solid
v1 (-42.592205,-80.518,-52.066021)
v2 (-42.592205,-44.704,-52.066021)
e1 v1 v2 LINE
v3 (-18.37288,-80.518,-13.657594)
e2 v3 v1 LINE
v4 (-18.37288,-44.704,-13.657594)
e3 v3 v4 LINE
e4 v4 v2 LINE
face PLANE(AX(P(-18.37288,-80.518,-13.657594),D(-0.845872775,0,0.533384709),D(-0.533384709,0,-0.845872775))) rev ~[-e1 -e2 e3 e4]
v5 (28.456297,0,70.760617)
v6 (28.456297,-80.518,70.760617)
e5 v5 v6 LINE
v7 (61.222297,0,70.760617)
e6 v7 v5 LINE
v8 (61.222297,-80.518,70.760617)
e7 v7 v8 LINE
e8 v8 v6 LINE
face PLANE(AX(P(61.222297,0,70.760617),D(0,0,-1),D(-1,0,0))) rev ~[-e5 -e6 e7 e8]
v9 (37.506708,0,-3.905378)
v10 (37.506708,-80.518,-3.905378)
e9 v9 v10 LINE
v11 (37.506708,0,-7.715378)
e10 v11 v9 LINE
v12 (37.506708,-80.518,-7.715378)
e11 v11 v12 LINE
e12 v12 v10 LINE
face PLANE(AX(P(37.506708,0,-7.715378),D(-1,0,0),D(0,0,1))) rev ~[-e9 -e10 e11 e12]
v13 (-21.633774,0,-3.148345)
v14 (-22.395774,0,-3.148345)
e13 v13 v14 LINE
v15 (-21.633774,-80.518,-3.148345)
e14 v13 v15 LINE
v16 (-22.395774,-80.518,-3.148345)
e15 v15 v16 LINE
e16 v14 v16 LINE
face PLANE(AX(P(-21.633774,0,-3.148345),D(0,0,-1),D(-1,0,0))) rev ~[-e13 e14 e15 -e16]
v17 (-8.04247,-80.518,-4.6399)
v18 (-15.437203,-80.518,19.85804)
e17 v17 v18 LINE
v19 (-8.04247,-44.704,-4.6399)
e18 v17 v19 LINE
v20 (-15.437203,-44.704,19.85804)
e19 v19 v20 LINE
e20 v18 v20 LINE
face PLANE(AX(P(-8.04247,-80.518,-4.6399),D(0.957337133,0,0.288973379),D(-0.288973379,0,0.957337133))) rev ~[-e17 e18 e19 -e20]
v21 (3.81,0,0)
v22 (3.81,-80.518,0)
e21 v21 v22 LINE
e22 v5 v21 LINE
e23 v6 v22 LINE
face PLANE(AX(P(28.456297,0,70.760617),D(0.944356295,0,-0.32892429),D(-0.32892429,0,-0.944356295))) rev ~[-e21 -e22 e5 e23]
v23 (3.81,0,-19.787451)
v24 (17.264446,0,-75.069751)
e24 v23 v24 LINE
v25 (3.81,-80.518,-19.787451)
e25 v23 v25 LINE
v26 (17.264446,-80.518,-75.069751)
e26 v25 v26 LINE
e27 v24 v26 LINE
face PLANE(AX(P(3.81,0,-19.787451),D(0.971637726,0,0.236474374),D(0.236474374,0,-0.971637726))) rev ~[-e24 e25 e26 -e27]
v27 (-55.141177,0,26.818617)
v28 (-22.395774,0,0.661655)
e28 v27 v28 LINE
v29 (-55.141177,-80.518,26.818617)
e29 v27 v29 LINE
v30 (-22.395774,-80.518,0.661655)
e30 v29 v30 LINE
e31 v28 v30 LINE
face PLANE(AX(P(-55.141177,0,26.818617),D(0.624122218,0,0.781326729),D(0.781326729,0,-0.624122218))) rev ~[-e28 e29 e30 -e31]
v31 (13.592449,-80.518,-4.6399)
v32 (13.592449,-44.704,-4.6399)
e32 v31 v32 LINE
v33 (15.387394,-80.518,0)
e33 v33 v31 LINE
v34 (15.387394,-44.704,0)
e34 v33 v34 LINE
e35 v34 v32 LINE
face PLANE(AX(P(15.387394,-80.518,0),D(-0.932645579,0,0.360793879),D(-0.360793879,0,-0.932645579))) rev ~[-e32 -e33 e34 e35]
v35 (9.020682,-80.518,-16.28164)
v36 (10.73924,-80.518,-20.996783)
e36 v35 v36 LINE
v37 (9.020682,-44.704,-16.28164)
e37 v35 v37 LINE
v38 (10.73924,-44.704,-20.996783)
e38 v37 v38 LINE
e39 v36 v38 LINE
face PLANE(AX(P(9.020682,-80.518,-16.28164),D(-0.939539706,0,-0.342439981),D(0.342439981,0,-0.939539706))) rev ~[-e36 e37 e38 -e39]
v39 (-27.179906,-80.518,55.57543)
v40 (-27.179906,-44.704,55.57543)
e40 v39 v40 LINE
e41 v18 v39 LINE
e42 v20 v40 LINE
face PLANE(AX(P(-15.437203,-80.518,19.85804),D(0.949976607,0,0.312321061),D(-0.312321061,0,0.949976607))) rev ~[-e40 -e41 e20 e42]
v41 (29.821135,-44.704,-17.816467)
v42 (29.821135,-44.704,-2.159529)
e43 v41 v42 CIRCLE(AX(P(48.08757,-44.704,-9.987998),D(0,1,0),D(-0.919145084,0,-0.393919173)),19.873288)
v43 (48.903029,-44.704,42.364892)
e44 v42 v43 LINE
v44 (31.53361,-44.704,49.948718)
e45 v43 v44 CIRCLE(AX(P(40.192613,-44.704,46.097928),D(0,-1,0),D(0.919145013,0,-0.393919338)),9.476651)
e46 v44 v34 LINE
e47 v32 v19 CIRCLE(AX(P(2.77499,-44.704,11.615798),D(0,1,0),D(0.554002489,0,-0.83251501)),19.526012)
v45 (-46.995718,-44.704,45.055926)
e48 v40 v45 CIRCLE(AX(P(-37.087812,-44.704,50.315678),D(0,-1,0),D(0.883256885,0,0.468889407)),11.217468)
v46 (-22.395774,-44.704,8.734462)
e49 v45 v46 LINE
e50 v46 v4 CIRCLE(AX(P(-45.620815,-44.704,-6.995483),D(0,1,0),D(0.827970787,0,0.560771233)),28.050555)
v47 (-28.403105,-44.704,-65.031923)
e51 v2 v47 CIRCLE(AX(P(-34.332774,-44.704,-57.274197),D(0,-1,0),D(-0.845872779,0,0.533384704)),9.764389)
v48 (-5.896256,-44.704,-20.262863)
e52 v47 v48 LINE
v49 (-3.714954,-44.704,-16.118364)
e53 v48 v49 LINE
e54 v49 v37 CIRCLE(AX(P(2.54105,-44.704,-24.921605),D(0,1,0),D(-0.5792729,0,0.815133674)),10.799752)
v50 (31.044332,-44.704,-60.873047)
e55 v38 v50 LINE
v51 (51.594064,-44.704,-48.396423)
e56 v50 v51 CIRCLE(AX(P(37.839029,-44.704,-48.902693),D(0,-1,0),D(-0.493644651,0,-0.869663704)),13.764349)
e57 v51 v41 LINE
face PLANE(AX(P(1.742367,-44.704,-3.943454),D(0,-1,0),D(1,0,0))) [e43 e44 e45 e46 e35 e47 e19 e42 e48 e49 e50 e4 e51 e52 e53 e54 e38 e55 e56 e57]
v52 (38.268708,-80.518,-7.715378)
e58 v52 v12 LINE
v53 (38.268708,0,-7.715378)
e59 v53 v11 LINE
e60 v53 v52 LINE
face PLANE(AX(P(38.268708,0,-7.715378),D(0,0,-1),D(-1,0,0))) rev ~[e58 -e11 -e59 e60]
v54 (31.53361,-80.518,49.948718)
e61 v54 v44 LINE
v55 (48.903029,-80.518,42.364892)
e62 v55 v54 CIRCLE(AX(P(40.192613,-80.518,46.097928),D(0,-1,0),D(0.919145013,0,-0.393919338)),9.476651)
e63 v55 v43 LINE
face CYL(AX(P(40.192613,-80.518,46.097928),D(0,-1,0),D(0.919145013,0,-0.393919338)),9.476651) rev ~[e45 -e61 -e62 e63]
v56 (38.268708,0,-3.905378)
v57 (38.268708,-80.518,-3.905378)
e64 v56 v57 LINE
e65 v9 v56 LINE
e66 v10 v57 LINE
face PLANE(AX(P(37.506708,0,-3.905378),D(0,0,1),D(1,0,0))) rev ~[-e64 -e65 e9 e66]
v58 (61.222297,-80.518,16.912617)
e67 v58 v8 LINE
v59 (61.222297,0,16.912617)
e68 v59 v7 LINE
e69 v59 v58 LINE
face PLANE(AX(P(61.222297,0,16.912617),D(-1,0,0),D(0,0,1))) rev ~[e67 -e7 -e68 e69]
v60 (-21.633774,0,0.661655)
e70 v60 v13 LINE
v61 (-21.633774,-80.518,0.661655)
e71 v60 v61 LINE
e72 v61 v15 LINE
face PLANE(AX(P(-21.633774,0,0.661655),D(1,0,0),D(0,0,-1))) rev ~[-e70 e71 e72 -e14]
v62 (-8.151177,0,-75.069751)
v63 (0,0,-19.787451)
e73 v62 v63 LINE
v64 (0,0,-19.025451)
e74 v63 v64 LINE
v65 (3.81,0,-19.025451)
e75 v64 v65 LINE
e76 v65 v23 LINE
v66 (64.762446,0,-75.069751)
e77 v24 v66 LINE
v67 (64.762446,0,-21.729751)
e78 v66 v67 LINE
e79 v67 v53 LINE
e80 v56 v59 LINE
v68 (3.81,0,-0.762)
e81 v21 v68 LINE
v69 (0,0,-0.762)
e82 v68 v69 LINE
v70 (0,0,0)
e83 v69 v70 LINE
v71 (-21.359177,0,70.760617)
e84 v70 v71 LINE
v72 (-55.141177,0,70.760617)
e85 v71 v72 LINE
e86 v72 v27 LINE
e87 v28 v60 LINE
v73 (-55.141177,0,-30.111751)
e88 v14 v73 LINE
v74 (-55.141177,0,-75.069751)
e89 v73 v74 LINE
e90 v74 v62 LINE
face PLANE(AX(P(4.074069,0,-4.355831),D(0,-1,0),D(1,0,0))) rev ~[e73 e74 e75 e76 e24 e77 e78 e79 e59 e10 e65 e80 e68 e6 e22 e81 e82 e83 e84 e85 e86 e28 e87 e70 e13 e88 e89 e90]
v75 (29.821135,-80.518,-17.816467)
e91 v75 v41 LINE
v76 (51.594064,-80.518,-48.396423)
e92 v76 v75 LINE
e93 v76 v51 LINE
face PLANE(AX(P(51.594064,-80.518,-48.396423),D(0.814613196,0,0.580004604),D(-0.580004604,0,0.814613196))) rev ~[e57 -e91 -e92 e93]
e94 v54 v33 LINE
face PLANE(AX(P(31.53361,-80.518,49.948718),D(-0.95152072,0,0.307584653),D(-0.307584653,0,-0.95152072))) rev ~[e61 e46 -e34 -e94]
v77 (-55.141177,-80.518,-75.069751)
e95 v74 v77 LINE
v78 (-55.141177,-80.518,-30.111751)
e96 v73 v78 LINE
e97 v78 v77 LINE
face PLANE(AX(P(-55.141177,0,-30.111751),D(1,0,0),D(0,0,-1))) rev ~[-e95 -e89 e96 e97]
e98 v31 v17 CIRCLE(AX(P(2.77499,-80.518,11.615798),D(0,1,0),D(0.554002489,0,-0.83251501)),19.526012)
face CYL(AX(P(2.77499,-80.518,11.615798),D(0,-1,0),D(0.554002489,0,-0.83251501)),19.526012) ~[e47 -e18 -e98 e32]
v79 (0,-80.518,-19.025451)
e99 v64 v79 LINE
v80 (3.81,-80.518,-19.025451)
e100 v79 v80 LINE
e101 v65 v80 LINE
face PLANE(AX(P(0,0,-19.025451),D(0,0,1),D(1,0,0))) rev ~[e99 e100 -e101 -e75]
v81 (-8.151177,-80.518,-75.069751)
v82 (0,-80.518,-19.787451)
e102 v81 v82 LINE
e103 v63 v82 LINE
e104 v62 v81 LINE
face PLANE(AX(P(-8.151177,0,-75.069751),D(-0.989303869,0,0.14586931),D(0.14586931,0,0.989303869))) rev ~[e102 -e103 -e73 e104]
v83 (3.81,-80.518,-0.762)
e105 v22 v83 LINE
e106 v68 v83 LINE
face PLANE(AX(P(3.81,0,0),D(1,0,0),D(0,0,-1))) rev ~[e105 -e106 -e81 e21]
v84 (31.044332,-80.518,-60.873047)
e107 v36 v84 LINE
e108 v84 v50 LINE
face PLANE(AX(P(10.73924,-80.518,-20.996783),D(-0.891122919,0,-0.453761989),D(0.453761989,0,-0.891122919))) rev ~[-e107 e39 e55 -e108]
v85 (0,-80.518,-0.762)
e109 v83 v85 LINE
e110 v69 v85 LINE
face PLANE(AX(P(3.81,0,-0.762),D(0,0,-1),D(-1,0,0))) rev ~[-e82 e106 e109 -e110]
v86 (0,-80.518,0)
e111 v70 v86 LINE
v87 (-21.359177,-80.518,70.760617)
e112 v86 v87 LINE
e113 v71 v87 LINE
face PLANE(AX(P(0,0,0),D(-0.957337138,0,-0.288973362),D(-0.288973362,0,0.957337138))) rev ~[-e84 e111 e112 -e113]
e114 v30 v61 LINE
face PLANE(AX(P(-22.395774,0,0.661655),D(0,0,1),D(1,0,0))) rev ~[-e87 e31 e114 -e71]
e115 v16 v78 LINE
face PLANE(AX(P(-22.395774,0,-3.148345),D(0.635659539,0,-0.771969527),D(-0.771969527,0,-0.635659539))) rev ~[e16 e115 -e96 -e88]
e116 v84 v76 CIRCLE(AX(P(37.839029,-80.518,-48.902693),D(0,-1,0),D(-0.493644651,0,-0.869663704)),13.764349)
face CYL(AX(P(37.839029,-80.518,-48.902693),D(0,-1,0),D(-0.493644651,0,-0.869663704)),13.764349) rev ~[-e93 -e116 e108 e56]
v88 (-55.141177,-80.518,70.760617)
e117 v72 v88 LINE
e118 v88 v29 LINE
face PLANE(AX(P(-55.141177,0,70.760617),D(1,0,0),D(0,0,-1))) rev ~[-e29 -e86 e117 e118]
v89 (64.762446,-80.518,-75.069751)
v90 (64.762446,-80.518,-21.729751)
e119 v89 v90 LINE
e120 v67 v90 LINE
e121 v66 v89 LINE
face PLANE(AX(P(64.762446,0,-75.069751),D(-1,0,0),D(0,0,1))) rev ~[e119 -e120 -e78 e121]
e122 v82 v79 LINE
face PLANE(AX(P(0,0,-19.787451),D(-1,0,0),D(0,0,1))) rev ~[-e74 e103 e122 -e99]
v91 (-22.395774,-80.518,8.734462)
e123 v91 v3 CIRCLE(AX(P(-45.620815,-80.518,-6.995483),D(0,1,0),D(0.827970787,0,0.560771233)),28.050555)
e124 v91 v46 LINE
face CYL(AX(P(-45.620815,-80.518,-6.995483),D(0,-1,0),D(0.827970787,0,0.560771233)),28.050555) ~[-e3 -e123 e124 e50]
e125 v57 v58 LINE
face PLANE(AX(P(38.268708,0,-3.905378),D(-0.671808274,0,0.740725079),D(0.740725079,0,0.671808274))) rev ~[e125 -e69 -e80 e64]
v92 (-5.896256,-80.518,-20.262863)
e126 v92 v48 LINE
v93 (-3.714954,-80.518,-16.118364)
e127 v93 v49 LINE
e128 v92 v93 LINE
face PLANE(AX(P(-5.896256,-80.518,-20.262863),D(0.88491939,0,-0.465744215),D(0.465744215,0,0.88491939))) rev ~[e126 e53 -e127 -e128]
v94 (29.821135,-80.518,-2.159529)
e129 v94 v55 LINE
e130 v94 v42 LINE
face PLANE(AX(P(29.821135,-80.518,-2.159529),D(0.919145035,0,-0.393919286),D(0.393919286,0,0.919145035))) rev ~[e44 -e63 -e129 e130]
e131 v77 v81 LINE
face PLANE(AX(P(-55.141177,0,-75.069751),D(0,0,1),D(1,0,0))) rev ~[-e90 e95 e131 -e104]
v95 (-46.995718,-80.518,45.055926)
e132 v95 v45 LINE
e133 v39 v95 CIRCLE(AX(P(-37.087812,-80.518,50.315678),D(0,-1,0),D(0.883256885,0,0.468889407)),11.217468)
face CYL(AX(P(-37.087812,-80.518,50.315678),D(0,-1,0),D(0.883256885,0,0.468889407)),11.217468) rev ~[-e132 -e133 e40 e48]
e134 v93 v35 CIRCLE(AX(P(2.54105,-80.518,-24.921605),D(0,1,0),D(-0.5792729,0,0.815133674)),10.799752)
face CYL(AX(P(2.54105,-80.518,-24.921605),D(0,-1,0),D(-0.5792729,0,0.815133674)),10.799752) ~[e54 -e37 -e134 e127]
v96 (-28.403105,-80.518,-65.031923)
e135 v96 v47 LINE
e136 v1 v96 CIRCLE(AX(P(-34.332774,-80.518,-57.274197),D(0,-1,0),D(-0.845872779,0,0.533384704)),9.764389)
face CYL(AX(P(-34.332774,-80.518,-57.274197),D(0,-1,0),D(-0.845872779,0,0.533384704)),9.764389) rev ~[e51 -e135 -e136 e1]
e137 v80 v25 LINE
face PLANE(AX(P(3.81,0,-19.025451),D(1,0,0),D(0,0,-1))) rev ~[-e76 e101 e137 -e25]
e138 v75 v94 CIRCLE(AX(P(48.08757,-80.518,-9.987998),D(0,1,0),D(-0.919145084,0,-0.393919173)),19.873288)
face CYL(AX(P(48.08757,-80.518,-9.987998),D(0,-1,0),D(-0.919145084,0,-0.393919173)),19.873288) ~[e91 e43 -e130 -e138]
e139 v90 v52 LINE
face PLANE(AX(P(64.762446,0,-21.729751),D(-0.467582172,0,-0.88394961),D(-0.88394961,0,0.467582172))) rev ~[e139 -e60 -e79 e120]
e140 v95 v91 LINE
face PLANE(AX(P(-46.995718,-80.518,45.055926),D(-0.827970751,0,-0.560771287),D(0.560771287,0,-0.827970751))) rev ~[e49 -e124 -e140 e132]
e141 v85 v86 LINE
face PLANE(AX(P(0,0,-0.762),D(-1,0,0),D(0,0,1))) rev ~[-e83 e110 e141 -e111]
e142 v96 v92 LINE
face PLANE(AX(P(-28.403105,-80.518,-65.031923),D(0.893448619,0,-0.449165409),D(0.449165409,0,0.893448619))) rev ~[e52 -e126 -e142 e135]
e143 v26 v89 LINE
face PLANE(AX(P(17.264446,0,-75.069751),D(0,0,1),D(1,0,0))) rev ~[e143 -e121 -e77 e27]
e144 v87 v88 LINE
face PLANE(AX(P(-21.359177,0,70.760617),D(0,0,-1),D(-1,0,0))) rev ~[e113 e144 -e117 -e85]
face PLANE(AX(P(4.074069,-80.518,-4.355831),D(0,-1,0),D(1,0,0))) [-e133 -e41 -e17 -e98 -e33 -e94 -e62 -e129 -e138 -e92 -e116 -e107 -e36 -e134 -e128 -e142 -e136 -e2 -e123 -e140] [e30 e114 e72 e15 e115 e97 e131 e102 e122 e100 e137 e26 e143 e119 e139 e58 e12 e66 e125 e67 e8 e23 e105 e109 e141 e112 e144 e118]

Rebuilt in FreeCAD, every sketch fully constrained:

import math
import FreeCAD as App
import Part
import Sketcher
from FreeCAD import Vector
Q = App.Units.Quantity


def add_polygon(sketch, points):
    """Adds a closed chain of lines whose ends are joined by coincident constraints."""
    first, n = sketch.GeometryCount, len(points)
    for a, b in zip(points, points[1:] + points[:1]):
        sketch.addGeometry(Part.LineSegment(App.Vector(*a, 0), App.Vector(*b, 0)), False)
    for i in range(n):
        sketch.addConstraint(Sketcher.Constraint("Coincident", first + i, 2, first + (i + 1) % n, 1))

doc = App.newDocument("Part")
body = doc.addObject("PartDesign::Body", "Body")

# Sketch on XZ plane
sketch1 = body.newObject("Sketcher::SketchObject", "Sketch")
sketch1.AttachmentSupport = (doc.getObject("XZ_Plane"), [""])
sketch1.MapMode = "FlatFace"
add_polygon(sketch1, [(0, -0.762), (0, 0), (-21.359177, 70.760617), (-55.141177, 70.760617), (-55.141177, 26.818617), (-22.395774, 0.661655), (-21.633774, 0.661655), (-21.633774, -3.148345), (-22.395774, -3.148345), (-55.141177, -30.111751), (-55.141177, -75.069751), (-8.151177, -75.069751), (0, -19.787451), (0, -19.025451), (3.81, -19.025451), (3.81, -19.787451), (17.264446, -75.069751), (64.762446, -75.069751), (64.762446, -21.729751), (38.268708, -7.715378), (37.506708, -7.715378), (37.506708, -3.905378), (38.268708, -3.905378), (61.222297, 16.912617), (61.222297, 70.760617), (28.456297, 70.760617), (3.81, 0), (3.81, -0.762)])  # lines 0-27
sketch1.addConstraint([
    Sketcher.Constraint("Vertical", 0),
    Sketcher.Constraint("Horizontal", 2),
    Sketcher.Constraint("Vertical", 3),
    Sketcher.Constraint("Horizontal", 5),
    Sketcher.Constraint("Vertical", 6),
    Sketcher.Constraint("Horizontal", 7),
    Sketcher.Constraint("Vertical", 9),
    Sketcher.Constraint("Horizontal", 10),
    Sketcher.Constraint("Vertical", 12),
    Sketcher.Constraint("Horizontal", 13),
    Sketcher.Constraint("Vertical", 14),
    Sketcher.Constraint("Horizontal", 16),
    Sketcher.Constraint("Vertical", 17),
    Sketcher.Constraint("Horizontal", 19),
    Sketcher.Constraint("Vertical", 20),
    Sketcher.Constraint("Horizontal", 21),
    Sketcher.Constraint("Vertical", 23),
    Sketcher.Constraint("Horizontal", 24),
    Sketcher.Constraint("Vertical", 26),
    Sketcher.Constraint("Horizontal", 27),
    Sketcher.Constraint("Coincident", 0, 2, -1, 1),
    Sketcher.Constraint("PointOnObject", 11, 2, -2),
    Sketcher.Constraint("PointOnObject", 25, 2, -1),
    Sketcher.Constraint("Horizontal", 11, 2, 14, 2),
    Sketcher.Constraint("Horizontal", 10, 2, 15, 2),
    Sketcher.Constraint("Horizontal", 2, 2, 23, 2),
    Sketcher.Constraint("Vertical", 4, 2, 7, 2),
    Sketcher.Constraint("Vertical", 3, 2, 8, 2),
    Sketcher.Constraint("Vertical", 18, 2, 21, 2),
    Sketcher.Constraint("Vertical", 14, 2, 25, 2),
    Sketcher.Constraint("Equal", 7, 19),
    Sketcher.Constraint("Equal", 21, 0),
    Sketcher.Constraint("Equal", 27, 6),
    Sketcher.Constraint("Equal", 0, 12),
    Sketcher.Constraint("Equal", 6, 20),
    Sketcher.Constraint("DistanceY", 17, 1, 17, 2, Q("2.1 in")),
    Sketcher.Constraint("Distance", 11, Q("2.2 in")),
    Sketcher.Constraint("DistanceX", 2, 2, 2, 1, Q("1.33 in")),
    Sketcher.Constraint("DistanceX", 5, 1, 5, 2, Q("0.03 in")),
    Sketcher.Constraint("DistanceX", 10, 1, 10, 2, Q("1.85 in")),
    Sketcher.Constraint("DistanceX", 13, 1, 13, 2, Q("0.15 in")),
    Sketcher.Constraint("DistanceX", 16, 1, 16, 2, Q("1.87 in")),
    Sketcher.Constraint("DistanceX", 24, 2, 24, 1, Q("1.29 in")),
    Sketcher.Constraint("DistanceY", 3, 2, 3, 1, Q("1.73 in")),
    Sketcher.Constraint("DistanceY", 9, 2, 9, 1, Q("1.77 in")),
    Sketcher.Constraint("DistanceY", 23, 1, 23, 2, Q("2.12 in")),
    Sketcher.Constraint("Distance", 1, Q("2.91 in")),
    Sketcher.Constraint("Distance", 4, Q("1.65 in")),
    Sketcher.Constraint("Distance", 8, Q("1.67 in")),
    Sketcher.Constraint("Distance", 15, Q("2.24 in")),
    Sketcher.Constraint("Distance", 18, Q("1.18 in")),
    Sketcher.Constraint("Distance", 22, Q("1.22 in")),
    Sketcher.Constraint("Distance", 25, Q("2.95 in")),
    Sketcher.Constraint("DistanceY", 15, 2, 14, 2, Q("55.2823 mm")),
    Sketcher.Constraint("DistanceY", 8, 2, -1, 1, Q("30.111751 mm")),
])
pad1 = body.newObject("PartDesign::Pad", "Pad")
pad1.Profile = sketch1
pad1.Length = Q("3.17 in")

# Sketch on XZ plane
sketch2 = body.newObject("Sketcher::SketchObject", "Sketch001")
sketch2.AttachmentSupport = (doc.getObject("XZ_Plane"), [""])
sketch2.MapMode = "FlatFace"
sketch2.AttachmentOffset = App.Placement(Vector(0, 0, 3.17 * 25.4), App.Rotation())
sketch2.addGeometry([
    Part.ArcOfCircle(Part.Circle(Vector(-37.087812, 50.315678, 0), Vector(0, 0, 1), 11.217468), math.radians(27.96223), math.radians(207.96223)),  # 0
    Part.LineSegment(Vector(-46.995718, 45.055926, 0), Vector(-22.395774, 8.734462, 0)),  # 1
    Part.ArcOfCircle(Part.Circle(Vector(-45.620815, -6.995483, 0), Vector(0, 0, 1), 28.050555), math.radians(-13.739255), math.radians(34.10915)),  # 2
    Part.LineSegment(Vector(-18.37288, -13.657594, 0), Vector(-42.592205, -52.066021, 0)),  # 3
    Part.ArcOfCircle(Part.Circle(Vector(-34.332774, -57.274197, 0), Vector(0, 0, 1), 9.764389), math.radians(147.765568), math.radians(307.392726)),  # 4
    Part.LineSegment(Vector(-28.403105, -65.031923, 0), Vector(-5.896256, -20.262863, 0)),  # 5
    Part.LineSegment(Vector(-5.896256, -20.262863, 0), Vector(-3.714954, -16.118364, 0)),  # 6
    Part.ArcOfCircle(Part.Circle(Vector(2.54105, -24.921605, 0), Vector(0, 0, 1), 10.799752), math.radians(53.131552), math.radians(125.399419)),  # 7
    Part.LineSegment(Vector(9.020682, -16.28164, 0), Vector(10.73924, -20.996783, 0)),  # 8
    Part.LineSegment(Vector(10.73924, -20.996783, 0), Vector(31.044332, -60.873047, 0)),  # 9
    Part.ArcOfCircle(Part.Circle(Vector(37.839029, -48.902693, 0), Vector(0, 0, 1), 13.764349), math.radians(-119.580417), math.radians(2.107884)),  # 10
    Part.LineSegment(Vector(51.594064, -48.396423, 0), Vector(29.821135, -17.816467, 0)),  # 11
    Part.ArcOfCircle(Part.Circle(Vector(48.08757, -9.987998, 0), Vector(0, 0, 1), 19.873288), math.radians(156.801417), math.radians(203.198583)),  # 12
    Part.LineSegment(Vector(29.821135, -2.159529, 0), Vector(48.903029, 42.364892, 0)),  # 13
    Part.ArcOfCircle(Part.Circle(Vector(40.192613, 46.097928, 0), Vector(0, 0, 1), 9.476651), math.radians(-23.198593), math.radians(156.024559)),  # 14
    Part.LineSegment(Vector(31.53361, 49.948718, 0), Vector(15.387394, 0, 0)),  # 15
    Part.LineSegment(Vector(15.387394, 0, 0), Vector(13.592449, -4.6399, 0)),  # 16
    Part.ArcOfCircle(Part.Circle(Vector(2.77499, 11.615798, 0), Vector(0, 0, 1), 19.526012), math.radians(-123.642036), math.radians(-56.357964)),  # 17
    Part.LineSegment(Vector(-8.04247, -4.6399, 0), Vector(-15.437203, 19.85804, 0)),  # 18
    Part.LineSegment(Vector(-15.437203, 19.85804, 0), Vector(-27.179906, 55.57543, 0)),  # 19
], False)
sketch2.addConstraint([
    Sketcher.Constraint("Coincident", 0, 2, 1, 1),
    Sketcher.Constraint("Coincident", 1, 2, 2, 2),
    Sketcher.Constraint("Coincident", 2, 1, 3, 1),
    Sketcher.Constraint("Coincident", 3, 2, 4, 1),
    Sketcher.Constraint("Coincident", 4, 2, 5, 1),
    Sketcher.Constraint("Coincident", 5, 2, 6, 1),
    Sketcher.Constraint("Coincident", 6, 2, 7, 2),
    Sketcher.Constraint("Coincident", 7, 1, 8, 1),
    Sketcher.Constraint("Coincident", 8, 2, 9, 1),
    Sketcher.Constraint("Coincident", 9, 2, 10, 1),
    Sketcher.Constraint("Coincident", 10, 2, 11, 1),
    Sketcher.Constraint("Coincident", 11, 2, 12, 2),
    Sketcher.Constraint("Coincident", 12, 1, 13, 1),
    Sketcher.Constraint("Coincident", 13, 2, 14, 1),
    Sketcher.Constraint("Coincident", 14, 2, 15, 1),
    Sketcher.Constraint("Coincident", 15, 2, 16, 1),
    Sketcher.Constraint("Coincident", 16, 2, 17, 2),
    Sketcher.Constraint("Coincident", 17, 1, 18, 1),
    Sketcher.Constraint("Coincident", 18, 2, 19, 1),
    Sketcher.Constraint("Coincident", 19, 2, 0, 1),
    Sketcher.Constraint("PointOnObject", 15, 2, -1),
    Sketcher.Constraint("Radius", 0, Q("11.217468 mm")),
    Sketcher.Constraint("Radius", 4, Q("9.764389 mm")),
    Sketcher.Constraint("Radius", 7, Q("10.799752 mm")),
    Sketcher.Constraint("Radius", 10, Q("13.764349 mm")),
    Sketcher.Constraint("Radius", 14, Q("9.476651 mm")),
    Sketcher.Constraint("Radius", 2, Q("28.050555 mm")),
    Sketcher.Constraint("Radius", 12, Q("19.873288 mm")),
    Sketcher.Constraint("Radius", 17, Q("19.526012 mm")),
    Sketcher.Constraint("DistanceY", -1, 1, 17, 3, Q("11.615798 mm")),
    Sketcher.Constraint("DistanceY", 16, 2, -1, 1, Q("4.6399 mm")),
    Sketcher.Constraint("DistanceY", 17, 1, -1, 1, Q("4.6399 mm")),
    Sketcher.Constraint("DistanceY", 4, 3, 12, 3, Q("47.286199 mm")),
    Sketcher.Constraint("DistanceX", 0, 3, 17, 3, Q("39.862802 mm")),
    Sketcher.Constraint("DistanceX", 3, 2, 4, 2, Q("14.1891 mm")),
    Sketcher.Constraint("DistanceY", 4, 2, 3, 2, Q("12.965902 mm")),
    Sketcher.Constraint("DistanceY", 5, 2, 6, 2, Q("4.144499 mm")),
    Sketcher.Constraint("Distance", 3, Q("45.40686 mm")),
    Sketcher.Constraint("Distance", 9, Q("44.748332 mm")),
    Sketcher.Constraint("Distance", 15, Q("52.493568 mm")),
    Sketcher.Constraint("Distance", 18, Q("25.589669 mm")),
    Sketcher.Constraint("Distance", 19, Q("37.598178 mm")),
    Sketcher.Constraint("DistanceX", -1, 1, 7, 3, Q("2.54105 mm")),
    Sketcher.Constraint("DistanceX", -1, 1, 10, 3, Q("37.839029 mm")),
    Sketcher.Constraint("DistanceX", -1, 1, 12, 3, Q("48.08757 mm")),
    Sketcher.Constraint("DistanceY", -1, 1, 14, 3, Q("46.097928 mm")),
    Sketcher.Constraint("DistanceX", -1, 1, 17, 3, Q("2.77499 mm")),
    Sketcher.Constraint("DistanceX", 0, 2, -1, 1, Q("46.995718 mm")),
    Sketcher.Constraint("DistanceX", 2, 1, -1, 1, Q("18.37288 mm")),
    Sketcher.Constraint("DistanceY", 3, 2, -1, 1, Q("52.066021 mm")),
    Sketcher.Constraint("DistanceY", 7, 1, -1, 1, Q("16.28164 mm")),
    Sketcher.Constraint("DistanceX", -1, 1, 8, 2, Q("10.73924 mm")),
    Sketcher.Constraint("DistanceY", 12, 1, -1, 1, Q("2.159529 mm")),
    Sketcher.Constraint("DistanceX", -1, 1, 13, 2, Q("48.903029 mm")),
    Sketcher.Constraint("DistanceY", -1, 1, 13, 2, Q("42.364892 mm")),
    Sketcher.Constraint("DistanceX", -1, 1, 14, 2, Q("31.53361 mm")),
    Sketcher.Constraint("DistanceY", -1, 1, 18, 2, Q("19.85804 mm")),
    Sketcher.Constraint("DistanceY", -1, 1, 19, 2, Q("55.57543 mm")),
    Sketcher.Constraint("DistanceY", 2, 3, 0, 3, Q("57.311161 mm")),
    Sketcher.Constraint("DistanceX", 2, 3, 4, 3, Q("11.28804 mm")),
    Sketcher.Constraint("DistanceY", 4, 3, 7, 3, Q("32.352591 mm")),
    Sketcher.Constraint("DistanceY", 10, 3, 2, 3, Q("41.90721 mm")),
    Sketcher.Constraint("DistanceX", 2, 3, 1, 2, Q("23.225041 mm")),
    Sketcher.Constraint("DistanceY", 5, 2, 2, 1, Q("6.605269 mm")),
    Sketcher.Constraint("DistanceX", 2, 3, 5, 2, Q("39.724559 mm")),
    Sketcher.Constraint("DistanceY", 8, 2, 6, 2, Q("4.878419 mm")),
    Sketcher.Constraint("DistanceY", 10, 3, 10, 2, Q("0.50627 mm")),
    Sketcher.Constraint("DistanceY", 11, 2, 12, 3, Q("7.828469 mm")),
])
pocket1 = body.newObject("PartDesign::Pocket", "Pocket")
pocket1.Profile = sketch2
pocket1.Length = Q("1.41 in")

doc.recompute()
